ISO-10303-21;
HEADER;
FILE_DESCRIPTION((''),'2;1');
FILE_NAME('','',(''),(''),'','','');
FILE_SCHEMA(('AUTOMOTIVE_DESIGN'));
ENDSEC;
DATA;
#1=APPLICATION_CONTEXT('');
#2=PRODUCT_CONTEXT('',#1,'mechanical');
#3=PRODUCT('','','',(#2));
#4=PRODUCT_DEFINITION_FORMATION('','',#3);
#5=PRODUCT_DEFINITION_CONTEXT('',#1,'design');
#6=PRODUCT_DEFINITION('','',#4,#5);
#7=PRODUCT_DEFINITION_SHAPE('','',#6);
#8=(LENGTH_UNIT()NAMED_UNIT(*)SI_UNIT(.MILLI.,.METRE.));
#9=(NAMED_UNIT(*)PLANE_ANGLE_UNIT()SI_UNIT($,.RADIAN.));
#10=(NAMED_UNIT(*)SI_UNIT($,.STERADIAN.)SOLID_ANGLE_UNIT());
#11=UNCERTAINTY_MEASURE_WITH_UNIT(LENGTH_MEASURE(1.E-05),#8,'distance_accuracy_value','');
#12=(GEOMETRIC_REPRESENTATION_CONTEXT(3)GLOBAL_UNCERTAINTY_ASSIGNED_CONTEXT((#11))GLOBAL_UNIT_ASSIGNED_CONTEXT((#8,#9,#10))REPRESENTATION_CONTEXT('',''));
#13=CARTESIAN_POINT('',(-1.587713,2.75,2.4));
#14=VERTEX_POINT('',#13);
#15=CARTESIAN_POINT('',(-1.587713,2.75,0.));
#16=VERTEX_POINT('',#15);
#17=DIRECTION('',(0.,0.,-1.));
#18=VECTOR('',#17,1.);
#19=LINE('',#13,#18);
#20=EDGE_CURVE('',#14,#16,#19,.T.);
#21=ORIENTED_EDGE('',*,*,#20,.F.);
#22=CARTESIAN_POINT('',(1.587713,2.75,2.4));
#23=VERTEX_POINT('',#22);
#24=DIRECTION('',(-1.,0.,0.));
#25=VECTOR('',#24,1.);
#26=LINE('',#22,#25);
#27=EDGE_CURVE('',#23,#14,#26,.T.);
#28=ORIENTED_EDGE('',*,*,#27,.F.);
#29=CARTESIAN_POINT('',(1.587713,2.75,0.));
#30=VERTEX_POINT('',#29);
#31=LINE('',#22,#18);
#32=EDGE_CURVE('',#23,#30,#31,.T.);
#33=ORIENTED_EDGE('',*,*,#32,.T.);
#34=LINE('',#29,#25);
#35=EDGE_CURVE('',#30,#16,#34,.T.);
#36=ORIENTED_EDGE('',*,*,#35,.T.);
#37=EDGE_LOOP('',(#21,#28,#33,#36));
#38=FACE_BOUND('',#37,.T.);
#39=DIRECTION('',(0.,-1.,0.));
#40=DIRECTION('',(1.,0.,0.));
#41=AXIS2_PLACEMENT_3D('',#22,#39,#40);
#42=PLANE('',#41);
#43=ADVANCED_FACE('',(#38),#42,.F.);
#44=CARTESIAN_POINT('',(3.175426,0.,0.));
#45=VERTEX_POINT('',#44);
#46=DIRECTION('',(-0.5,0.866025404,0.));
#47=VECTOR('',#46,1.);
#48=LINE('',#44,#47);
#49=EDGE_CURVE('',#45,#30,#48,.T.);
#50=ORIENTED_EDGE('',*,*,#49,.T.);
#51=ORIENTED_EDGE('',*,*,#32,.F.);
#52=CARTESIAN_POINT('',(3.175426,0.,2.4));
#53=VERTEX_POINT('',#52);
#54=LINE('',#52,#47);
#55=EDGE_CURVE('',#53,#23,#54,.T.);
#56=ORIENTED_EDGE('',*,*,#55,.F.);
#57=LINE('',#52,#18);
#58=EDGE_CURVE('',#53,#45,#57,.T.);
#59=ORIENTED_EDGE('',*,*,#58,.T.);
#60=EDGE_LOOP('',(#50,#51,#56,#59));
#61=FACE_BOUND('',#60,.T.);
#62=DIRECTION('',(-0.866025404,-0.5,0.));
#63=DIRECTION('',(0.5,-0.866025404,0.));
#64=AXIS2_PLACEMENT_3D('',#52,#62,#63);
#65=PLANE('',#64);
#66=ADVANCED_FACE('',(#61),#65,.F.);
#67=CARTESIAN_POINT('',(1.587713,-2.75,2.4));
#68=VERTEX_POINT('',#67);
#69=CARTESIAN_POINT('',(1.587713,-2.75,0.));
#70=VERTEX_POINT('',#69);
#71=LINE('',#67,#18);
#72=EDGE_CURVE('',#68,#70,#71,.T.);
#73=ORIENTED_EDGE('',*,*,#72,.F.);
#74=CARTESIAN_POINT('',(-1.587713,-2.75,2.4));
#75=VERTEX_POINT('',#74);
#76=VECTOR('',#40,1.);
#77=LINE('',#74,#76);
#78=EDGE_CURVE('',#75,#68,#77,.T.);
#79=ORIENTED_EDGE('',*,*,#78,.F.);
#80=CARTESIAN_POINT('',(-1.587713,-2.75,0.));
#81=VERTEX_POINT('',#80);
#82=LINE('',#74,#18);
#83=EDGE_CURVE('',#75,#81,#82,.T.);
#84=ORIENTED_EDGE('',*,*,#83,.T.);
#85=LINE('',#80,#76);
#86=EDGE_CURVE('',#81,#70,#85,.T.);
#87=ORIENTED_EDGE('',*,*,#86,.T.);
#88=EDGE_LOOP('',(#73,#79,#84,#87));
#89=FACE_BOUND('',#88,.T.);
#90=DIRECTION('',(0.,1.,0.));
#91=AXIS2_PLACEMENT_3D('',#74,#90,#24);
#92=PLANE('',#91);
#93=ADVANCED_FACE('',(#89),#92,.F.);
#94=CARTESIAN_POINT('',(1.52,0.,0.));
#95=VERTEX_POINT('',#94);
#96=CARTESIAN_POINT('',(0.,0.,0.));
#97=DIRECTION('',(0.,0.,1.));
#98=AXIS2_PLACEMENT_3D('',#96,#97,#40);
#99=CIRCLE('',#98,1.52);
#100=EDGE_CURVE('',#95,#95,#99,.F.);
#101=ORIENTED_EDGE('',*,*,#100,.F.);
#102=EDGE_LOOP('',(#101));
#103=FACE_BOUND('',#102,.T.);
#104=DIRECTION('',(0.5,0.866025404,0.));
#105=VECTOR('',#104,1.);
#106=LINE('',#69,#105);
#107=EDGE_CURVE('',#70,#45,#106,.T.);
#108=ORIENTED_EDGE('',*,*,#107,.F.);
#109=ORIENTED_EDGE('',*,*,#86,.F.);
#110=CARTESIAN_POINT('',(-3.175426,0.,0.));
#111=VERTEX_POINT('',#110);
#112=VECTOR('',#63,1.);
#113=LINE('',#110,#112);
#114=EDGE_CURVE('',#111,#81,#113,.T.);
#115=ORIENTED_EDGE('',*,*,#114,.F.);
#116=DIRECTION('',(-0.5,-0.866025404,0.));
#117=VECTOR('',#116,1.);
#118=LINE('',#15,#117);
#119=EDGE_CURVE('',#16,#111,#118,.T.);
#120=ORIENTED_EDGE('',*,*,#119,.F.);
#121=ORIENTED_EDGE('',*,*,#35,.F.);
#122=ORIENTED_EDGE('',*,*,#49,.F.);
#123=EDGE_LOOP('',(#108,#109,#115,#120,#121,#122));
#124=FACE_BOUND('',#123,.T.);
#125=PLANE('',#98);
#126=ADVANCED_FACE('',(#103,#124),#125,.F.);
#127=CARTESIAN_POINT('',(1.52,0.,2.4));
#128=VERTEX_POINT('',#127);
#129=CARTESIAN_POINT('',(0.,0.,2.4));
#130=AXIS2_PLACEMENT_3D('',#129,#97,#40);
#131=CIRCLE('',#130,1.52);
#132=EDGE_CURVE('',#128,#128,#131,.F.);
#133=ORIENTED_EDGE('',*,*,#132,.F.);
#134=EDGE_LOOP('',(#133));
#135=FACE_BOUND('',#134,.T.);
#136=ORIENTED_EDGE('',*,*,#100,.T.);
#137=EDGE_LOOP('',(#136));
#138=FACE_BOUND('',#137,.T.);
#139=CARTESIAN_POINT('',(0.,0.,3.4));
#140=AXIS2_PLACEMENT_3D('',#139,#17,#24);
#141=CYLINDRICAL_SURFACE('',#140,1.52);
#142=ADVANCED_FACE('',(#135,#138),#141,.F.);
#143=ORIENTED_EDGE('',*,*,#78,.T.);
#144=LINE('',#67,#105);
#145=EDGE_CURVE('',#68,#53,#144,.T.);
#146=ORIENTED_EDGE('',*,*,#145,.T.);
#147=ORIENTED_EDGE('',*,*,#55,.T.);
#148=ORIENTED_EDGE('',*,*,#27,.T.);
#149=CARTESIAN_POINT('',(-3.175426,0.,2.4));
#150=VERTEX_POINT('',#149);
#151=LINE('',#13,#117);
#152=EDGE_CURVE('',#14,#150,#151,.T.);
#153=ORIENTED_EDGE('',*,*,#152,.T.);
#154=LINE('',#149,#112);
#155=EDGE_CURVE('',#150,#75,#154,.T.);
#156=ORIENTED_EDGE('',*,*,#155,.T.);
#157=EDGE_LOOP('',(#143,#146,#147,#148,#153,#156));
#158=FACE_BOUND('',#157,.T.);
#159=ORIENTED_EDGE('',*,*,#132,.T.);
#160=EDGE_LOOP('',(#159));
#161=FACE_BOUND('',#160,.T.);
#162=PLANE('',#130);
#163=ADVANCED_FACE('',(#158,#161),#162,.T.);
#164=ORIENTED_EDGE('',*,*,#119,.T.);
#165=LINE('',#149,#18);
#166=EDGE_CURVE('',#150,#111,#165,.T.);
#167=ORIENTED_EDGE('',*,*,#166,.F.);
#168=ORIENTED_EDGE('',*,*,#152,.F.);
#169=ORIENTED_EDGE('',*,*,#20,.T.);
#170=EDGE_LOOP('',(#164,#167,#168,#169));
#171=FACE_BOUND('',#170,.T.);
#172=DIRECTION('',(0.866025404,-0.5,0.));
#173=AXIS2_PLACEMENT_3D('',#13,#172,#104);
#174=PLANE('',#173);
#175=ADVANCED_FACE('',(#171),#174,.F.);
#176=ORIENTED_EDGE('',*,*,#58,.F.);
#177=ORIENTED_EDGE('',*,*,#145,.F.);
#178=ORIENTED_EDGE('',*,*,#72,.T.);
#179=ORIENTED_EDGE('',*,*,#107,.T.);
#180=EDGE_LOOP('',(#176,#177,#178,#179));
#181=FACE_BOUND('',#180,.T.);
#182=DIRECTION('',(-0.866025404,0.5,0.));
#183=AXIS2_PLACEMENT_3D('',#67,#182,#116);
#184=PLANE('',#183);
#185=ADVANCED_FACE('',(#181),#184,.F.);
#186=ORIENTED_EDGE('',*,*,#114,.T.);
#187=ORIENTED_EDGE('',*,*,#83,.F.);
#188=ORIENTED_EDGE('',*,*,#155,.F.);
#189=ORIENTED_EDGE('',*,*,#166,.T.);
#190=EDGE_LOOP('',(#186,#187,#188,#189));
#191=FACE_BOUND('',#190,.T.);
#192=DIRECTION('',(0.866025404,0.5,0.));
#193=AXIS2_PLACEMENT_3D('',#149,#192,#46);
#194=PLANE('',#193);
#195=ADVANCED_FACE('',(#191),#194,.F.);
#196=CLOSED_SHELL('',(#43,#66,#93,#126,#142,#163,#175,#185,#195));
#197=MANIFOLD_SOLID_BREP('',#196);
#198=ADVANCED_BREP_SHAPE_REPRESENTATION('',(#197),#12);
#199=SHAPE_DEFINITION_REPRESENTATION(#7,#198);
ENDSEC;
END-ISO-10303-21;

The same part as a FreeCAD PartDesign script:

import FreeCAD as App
import Part
import Sketcher
from FreeCAD import Vector
Q = App.Units.Quantity


def add_polygon(sketch, points):
    """Adds a closed chain of lines whose ends are joined by coincident constraints."""
    first, n = sketch.GeometryCount, len(points)
    for a, b in zip(points, points[1:] + points[:1]):
        sketch.addGeometry(Part.LineSegment(App.Vector(*a, 0), App.Vector(*b, 0)), False)
    for i in range(n):
        sketch.addConstraint(Sketcher.Constraint("Coincident", first + i, 2, first + (i + 1) % n, 1))

doc = App.newDocument("Part")
body = doc.addObject("PartDesign::Body", "Body")

# Sketch on XY plane
sketch1 = doc.addObject("Sketcher::SketchObject", "Sketch")
body.addObject(sketch1)
sketch1.AttachmentSupport = (doc.XY_Plane, [""])
sketch1.MapMode = "FlatFace"
add_polygon(sketch1, [(3.2, 0), (1.6, 2.8), (-1.6, 2.8), (-3.2, 0), (-1.6, -2.8), (1.6, -2.8)])  # lines 0-5
sketch1.addConstraint([
    Sketcher.Constraint("Horizontal", 1),
    Sketcher.Constraint("Horizontal", 4),
    Sketcher.Constraint("Symmetric", 0, 2, 3, 2, -1, 1),
    Sketcher.Constraint("Symmetric", 2, 2, 5, 2, -1, 1),
    Sketcher.Constraint("PointOnObject", 2, 2, -1),
    Sketcher.Constraint("Parallel", 2, 5),
    Sketcher.Constraint("Vertical", 1, 2, 3, 2),
    Sketcher.Constraint("Angle", 0, Q("120 deg")),
    Sketcher.Constraint("DistanceY", 3, 2, 1, 2, Q("5.5 mm")),
    Sketcher.Constraint("DistanceX", 1, 2, 1, 1, Q("3.175426 mm")),
])
pad1 = doc.addObject("PartDesign::Pad", "Pad")
body.addObject(pad1)
pad1.Profile = sketch1
pad1.Length = 2.4

# Sketch on XY plane
sketch2 = doc.addObject("Sketcher::SketchObject", "Sketch001")
body.addObject(sketch2)
sketch2.AttachmentSupport = (doc.XY_Plane, [""])
sketch2.MapMode = "FlatFace"
sketch2.AttachmentOffset = App.Placement(Vector(0, 0, -1), App.Rotation())
sketch2.addGeometry(Part.Circle(Vector(0, 0, 0), Vector(0, 0, 1), 1.5), False)
sketch2.addConstraint([
    Sketcher.Constraint("Coincident", 0, 3, -1, 1),
    Sketcher.Constraint("Diameter", 0, Q("3.04 mm")),
])
pocket1 = doc.addObject("PartDesign::Pocket", "Pocket")
body.addObject(pocket1)
pocket1.Profile = sketch2
pocket1.Length = 4.4
pocket1.Reversed = True

doc.recompute()
